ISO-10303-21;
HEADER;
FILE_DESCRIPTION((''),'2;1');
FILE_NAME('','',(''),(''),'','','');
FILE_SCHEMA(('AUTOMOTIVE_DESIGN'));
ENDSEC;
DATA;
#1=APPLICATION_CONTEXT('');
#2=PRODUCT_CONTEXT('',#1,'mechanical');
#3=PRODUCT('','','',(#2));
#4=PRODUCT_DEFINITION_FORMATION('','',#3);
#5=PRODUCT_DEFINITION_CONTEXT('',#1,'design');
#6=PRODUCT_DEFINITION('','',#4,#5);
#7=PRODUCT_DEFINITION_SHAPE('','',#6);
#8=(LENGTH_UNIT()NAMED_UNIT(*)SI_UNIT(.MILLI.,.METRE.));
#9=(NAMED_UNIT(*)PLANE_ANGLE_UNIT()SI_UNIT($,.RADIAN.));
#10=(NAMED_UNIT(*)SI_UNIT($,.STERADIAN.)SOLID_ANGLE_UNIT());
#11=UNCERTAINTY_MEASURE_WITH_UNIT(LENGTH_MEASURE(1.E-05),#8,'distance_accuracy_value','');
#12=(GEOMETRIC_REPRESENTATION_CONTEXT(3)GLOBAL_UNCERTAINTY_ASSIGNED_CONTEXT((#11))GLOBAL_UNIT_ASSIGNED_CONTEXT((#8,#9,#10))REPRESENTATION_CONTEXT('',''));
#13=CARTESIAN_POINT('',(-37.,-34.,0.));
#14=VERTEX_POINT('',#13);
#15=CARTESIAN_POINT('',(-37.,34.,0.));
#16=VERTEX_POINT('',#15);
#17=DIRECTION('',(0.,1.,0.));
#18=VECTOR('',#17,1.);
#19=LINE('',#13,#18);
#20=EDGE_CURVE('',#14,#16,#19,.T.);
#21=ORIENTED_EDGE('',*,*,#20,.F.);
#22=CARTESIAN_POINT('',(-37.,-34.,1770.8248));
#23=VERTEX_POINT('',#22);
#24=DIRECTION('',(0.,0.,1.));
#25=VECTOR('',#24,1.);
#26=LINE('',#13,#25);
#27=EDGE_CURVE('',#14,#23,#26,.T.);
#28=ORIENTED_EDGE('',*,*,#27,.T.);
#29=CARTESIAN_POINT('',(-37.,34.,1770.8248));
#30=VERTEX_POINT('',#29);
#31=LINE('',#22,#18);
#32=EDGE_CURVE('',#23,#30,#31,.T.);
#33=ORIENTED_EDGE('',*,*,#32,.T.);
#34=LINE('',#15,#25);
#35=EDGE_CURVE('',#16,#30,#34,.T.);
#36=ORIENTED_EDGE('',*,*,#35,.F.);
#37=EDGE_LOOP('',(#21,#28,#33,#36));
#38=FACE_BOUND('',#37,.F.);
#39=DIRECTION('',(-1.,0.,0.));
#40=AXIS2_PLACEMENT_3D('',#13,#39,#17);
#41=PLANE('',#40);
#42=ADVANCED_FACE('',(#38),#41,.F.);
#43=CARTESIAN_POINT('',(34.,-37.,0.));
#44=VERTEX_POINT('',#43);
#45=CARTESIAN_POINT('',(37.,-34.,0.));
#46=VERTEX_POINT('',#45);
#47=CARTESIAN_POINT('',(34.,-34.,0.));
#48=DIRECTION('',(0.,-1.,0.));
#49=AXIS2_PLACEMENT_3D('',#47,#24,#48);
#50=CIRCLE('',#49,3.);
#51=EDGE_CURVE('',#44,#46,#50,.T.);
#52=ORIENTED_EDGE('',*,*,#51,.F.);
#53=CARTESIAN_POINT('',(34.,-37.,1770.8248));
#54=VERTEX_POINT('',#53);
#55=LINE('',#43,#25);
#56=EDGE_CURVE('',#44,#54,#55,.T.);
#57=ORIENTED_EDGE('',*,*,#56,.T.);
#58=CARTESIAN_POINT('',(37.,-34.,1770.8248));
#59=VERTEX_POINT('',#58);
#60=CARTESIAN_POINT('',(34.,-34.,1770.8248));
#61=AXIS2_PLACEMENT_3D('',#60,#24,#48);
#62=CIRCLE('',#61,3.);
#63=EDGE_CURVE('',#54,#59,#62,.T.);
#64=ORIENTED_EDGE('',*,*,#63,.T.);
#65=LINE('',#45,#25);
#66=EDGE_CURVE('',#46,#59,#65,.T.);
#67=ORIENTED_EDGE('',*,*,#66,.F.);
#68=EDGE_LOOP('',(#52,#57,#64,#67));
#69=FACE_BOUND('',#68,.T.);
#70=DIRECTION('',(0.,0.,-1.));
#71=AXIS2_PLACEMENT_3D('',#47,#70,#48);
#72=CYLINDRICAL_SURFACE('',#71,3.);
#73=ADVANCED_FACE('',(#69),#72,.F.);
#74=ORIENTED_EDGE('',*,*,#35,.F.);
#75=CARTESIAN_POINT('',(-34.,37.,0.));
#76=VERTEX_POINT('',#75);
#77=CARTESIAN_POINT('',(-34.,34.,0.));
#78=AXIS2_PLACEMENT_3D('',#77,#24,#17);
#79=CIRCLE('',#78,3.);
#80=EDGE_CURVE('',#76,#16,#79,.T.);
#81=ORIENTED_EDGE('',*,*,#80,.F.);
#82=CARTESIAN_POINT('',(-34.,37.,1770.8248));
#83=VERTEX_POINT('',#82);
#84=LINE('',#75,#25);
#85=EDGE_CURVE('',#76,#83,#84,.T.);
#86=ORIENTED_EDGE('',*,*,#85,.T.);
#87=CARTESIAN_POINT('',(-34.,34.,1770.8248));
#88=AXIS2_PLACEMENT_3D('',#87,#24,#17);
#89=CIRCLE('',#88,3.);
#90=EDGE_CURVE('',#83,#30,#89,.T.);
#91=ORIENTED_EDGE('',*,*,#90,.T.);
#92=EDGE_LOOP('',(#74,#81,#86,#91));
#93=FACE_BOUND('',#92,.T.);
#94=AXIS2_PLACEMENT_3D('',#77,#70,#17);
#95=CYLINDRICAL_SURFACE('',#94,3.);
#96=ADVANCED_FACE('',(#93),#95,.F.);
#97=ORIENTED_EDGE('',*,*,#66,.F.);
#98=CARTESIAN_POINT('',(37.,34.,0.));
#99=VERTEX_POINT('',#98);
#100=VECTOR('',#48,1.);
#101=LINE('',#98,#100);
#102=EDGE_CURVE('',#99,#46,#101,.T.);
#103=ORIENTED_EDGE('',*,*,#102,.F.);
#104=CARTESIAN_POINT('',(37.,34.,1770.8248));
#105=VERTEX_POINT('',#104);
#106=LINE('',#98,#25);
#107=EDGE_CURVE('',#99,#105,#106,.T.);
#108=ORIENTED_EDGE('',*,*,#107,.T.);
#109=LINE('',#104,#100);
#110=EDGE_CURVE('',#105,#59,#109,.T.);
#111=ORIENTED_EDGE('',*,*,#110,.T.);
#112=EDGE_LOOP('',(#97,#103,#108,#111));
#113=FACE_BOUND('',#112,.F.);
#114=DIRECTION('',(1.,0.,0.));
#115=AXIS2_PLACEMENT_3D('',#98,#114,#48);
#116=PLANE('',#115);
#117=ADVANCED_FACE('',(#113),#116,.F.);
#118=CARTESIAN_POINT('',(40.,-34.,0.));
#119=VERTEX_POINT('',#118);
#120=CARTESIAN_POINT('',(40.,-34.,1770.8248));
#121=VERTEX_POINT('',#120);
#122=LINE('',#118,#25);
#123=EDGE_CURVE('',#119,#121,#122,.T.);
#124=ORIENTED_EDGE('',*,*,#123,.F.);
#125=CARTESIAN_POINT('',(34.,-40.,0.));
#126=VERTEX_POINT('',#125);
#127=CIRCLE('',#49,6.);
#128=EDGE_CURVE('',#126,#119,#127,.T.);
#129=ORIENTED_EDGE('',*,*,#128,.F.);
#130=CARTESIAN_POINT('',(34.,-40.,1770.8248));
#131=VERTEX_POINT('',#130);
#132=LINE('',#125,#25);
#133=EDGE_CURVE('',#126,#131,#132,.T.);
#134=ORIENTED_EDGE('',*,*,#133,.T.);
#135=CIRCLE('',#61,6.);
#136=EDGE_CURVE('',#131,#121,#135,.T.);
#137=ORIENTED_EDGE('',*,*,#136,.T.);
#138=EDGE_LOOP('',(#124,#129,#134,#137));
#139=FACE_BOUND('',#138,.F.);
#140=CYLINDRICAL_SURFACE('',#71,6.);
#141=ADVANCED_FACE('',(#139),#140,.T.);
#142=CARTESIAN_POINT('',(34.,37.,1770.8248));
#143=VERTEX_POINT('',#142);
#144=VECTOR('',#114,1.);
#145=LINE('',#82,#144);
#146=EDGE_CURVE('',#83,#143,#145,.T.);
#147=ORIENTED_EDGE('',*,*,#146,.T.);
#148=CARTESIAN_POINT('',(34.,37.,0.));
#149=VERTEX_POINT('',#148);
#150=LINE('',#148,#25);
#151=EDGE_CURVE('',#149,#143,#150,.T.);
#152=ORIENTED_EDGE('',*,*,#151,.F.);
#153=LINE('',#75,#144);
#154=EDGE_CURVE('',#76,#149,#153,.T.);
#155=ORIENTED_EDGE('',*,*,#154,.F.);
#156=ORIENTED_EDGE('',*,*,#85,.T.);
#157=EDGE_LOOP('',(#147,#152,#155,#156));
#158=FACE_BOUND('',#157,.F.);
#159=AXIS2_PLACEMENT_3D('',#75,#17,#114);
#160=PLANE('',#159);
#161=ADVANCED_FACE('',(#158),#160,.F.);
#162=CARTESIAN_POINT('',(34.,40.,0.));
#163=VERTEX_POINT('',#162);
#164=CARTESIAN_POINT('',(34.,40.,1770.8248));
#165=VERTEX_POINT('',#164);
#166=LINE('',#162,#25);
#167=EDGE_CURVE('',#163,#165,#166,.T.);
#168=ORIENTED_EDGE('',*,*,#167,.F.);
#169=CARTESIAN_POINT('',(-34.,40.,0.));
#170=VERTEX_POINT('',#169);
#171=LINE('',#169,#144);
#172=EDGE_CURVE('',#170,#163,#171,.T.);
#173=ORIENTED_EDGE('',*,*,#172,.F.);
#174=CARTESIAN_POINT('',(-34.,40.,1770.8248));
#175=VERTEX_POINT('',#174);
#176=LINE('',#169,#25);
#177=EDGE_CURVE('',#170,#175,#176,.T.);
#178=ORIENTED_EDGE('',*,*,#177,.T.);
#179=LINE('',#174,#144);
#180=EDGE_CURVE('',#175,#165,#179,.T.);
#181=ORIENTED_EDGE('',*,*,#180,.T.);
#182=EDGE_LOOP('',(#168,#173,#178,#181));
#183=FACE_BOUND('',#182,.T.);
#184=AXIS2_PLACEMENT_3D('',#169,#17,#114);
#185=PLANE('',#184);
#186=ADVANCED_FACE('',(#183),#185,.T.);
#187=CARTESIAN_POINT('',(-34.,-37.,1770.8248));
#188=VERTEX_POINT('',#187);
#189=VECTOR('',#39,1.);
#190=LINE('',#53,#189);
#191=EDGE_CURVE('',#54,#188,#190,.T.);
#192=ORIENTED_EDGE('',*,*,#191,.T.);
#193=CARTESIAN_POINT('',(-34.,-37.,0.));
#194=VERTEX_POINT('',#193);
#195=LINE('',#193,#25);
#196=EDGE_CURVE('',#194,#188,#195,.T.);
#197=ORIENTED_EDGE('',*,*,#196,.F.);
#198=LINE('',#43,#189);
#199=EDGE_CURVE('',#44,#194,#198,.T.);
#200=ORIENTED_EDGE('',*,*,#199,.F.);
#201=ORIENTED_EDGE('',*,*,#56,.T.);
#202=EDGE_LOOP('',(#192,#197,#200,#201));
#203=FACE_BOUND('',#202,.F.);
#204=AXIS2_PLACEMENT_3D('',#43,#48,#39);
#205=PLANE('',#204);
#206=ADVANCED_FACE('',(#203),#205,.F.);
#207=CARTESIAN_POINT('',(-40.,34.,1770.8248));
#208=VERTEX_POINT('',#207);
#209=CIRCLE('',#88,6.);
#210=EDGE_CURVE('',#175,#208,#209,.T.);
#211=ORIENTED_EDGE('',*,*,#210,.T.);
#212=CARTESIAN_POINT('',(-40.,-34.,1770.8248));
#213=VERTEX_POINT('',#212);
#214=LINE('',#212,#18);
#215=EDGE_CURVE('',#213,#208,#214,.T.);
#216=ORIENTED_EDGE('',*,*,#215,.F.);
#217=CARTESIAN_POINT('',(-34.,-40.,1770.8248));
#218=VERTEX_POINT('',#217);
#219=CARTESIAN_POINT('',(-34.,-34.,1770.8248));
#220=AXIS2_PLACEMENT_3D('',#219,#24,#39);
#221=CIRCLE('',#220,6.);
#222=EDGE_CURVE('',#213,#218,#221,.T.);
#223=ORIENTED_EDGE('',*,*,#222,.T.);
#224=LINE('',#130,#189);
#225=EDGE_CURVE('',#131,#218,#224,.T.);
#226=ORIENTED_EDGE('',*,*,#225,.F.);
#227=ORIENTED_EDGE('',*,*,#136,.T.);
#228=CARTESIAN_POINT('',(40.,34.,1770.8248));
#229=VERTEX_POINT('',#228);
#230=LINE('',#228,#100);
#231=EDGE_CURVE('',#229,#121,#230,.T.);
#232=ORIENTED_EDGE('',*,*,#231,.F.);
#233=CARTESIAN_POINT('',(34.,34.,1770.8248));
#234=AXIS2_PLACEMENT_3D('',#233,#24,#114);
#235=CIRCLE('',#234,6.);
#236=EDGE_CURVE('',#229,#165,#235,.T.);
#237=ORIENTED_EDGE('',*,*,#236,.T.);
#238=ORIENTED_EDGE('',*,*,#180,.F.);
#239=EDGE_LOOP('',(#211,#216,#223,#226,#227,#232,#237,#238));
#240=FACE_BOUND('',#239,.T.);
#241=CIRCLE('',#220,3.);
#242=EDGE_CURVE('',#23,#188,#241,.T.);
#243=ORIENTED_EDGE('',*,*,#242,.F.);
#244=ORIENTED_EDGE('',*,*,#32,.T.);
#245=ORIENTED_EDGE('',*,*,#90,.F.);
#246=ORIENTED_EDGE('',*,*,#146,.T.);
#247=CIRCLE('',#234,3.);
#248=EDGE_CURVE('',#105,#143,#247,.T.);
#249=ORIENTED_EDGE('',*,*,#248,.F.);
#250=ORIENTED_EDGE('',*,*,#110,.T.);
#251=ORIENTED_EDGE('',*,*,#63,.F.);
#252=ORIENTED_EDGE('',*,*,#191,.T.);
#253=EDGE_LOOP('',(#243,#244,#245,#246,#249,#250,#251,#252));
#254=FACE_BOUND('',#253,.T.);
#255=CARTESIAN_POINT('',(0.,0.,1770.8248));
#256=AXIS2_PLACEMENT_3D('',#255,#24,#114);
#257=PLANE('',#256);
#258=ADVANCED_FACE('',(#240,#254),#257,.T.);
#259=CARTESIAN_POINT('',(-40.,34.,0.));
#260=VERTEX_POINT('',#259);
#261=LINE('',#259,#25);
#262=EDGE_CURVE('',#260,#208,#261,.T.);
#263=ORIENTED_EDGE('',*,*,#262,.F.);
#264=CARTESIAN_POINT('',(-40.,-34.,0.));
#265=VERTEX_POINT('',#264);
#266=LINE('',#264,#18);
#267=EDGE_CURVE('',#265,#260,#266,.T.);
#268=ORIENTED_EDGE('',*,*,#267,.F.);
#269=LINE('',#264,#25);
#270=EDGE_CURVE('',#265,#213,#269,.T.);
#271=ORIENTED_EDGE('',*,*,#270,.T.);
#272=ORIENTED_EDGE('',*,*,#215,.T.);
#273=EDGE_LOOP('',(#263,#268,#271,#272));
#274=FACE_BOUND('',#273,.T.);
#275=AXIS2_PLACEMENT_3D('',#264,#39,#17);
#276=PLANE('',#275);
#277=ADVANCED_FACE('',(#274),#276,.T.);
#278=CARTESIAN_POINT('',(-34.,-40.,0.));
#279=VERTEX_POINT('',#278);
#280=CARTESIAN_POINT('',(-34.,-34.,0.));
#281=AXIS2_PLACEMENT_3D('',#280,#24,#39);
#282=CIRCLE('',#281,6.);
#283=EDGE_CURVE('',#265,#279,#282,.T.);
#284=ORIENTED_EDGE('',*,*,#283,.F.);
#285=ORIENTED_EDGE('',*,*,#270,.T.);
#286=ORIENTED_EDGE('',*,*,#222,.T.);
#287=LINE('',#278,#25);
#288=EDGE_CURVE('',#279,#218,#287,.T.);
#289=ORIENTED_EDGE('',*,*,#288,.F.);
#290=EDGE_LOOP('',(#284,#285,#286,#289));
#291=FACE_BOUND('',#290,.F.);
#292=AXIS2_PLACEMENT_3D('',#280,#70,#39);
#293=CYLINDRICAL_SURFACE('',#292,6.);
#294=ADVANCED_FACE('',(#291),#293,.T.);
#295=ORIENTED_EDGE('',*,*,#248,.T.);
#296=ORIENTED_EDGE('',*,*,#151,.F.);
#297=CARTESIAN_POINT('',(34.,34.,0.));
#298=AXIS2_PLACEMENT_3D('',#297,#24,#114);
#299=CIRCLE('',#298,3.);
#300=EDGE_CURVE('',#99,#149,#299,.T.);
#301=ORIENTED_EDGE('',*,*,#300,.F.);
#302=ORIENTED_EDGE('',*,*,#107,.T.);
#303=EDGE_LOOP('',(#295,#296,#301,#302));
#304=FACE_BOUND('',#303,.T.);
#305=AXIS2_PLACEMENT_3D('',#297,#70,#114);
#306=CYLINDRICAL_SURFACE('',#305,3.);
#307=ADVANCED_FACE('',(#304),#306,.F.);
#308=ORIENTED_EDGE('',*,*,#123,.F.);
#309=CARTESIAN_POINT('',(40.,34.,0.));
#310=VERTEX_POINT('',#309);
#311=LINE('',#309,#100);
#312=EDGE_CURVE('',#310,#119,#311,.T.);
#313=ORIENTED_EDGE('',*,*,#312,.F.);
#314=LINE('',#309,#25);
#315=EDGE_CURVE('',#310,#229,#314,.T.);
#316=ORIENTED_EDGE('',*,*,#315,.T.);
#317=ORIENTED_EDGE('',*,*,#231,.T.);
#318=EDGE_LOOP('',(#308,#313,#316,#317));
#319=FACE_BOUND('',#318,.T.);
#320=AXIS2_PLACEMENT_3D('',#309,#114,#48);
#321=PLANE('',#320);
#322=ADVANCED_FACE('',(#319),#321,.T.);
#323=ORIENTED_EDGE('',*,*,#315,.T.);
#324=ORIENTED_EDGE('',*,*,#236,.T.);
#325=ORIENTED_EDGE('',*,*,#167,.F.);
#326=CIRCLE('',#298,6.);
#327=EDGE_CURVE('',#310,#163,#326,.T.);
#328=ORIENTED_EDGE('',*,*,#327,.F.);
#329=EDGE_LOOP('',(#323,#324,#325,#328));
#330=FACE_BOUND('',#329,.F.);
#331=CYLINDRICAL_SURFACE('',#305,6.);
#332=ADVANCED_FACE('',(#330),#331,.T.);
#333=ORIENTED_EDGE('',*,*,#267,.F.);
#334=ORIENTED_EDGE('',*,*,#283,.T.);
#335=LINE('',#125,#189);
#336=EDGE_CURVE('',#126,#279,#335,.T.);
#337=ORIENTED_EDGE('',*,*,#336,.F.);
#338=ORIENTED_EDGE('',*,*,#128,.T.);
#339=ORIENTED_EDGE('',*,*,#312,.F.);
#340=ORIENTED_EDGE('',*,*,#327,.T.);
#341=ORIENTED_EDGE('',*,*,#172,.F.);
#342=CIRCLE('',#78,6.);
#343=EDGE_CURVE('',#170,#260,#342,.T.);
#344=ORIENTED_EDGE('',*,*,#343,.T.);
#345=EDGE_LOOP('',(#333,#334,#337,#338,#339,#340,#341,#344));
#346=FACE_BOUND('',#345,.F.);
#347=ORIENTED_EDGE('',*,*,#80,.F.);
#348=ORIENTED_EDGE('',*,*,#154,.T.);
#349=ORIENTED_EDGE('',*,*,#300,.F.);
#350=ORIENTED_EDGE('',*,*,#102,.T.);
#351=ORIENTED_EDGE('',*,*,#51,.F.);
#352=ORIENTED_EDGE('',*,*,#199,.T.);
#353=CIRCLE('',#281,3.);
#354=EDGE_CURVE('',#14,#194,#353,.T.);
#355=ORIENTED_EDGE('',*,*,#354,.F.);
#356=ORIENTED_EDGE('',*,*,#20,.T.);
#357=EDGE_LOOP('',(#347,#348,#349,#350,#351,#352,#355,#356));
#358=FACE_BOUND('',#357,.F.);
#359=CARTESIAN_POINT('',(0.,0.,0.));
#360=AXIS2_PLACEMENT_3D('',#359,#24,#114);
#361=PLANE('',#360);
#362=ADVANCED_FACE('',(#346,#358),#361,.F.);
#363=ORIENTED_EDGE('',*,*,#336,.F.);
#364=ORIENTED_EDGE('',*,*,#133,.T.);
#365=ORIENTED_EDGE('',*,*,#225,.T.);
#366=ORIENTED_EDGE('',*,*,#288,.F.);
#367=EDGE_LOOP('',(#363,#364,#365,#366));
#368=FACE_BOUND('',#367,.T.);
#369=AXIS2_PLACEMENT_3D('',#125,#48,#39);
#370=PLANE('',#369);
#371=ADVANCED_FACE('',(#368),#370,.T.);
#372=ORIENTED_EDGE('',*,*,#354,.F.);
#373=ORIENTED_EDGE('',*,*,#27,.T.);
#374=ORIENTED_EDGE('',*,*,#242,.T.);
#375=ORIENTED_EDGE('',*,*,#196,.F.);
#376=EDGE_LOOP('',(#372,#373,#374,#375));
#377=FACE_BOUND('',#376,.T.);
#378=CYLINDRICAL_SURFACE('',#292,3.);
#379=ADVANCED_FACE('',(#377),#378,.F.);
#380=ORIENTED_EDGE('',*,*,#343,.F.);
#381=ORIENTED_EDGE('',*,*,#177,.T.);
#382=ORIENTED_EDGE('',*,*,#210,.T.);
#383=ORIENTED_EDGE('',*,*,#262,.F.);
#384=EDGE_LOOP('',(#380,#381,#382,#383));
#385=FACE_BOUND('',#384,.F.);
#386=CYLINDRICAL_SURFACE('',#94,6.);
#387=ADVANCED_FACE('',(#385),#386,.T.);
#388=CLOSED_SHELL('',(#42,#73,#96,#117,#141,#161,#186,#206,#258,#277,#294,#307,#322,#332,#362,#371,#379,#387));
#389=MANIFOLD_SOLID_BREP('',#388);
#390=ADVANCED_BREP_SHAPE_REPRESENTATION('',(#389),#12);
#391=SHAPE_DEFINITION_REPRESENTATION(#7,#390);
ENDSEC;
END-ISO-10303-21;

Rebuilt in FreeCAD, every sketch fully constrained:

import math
import FreeCAD as App
import Part
import Sketcher

V = App.Vector
Q = App.Units.Quantity

doc = App.newDocument("Part")
body = doc.addObject("PartDesign::Body", "Body")

sketch1 = body.newObject("Sketcher::SketchObject", "Sketch")
sketch1.AttachmentSupport = (doc.getObject("XY_Plane"), [""])
sketch1.MapMode = "FlatFace"
sketch1.addGeometry([
    Part.LineSegment(V(-40, 34, 0), V(-40, -34, 0)),
    Part.ArcOfCircle(Part.Circle(V(-34, -34, 0), V(0, 0, 1), 6), math.radians(180), math.radians(270)),
    Part.LineSegment(V(-34, -40, 0), V(34, -40, 0)),
    Part.ArcOfCircle(Part.Circle(V(34, -34, 0), V(0, 0, 1), 6), math.radians(-90), math.radians(0)),
    Part.LineSegment(V(40, -34, 0), V(40, 34, 0)),
    Part.ArcOfCircle(Part.Circle(V(34, 34, 0), V(0, 0, 1), 6), math.radians(0), math.radians(90)),
    Part.LineSegment(V(34, 40, 0), V(-34, 40, 0)),
    Part.ArcOfCircle(Part.Circle(V(-34, 34, 0), V(0, 0, 1), 6), math.radians(90), math.radians(180)),
    Part.ArcOfCircle(Part.Circle(V(-34, 34, 0), V(0, 0, 1), 3), math.radians(90), math.radians(180)),
    Part.LineSegment(V(-34, 37, 0), V(34, 37, 0)),
    Part.ArcOfCircle(Part.Circle(V(34, 34, 0), V(0, 0, 1), 3), math.radians(0), math.radians(90)),
    Part.LineSegment(V(37, 34, 0), V(37, -34, 0)),
    Part.ArcOfCircle(Part.Circle(V(34, -34, 0), V(0, 0, 1), 3), math.radians(-90), math.radians(0)),
    Part.LineSegment(V(34, -37, 0), V(-34, -37, 0)),
    Part.ArcOfCircle(Part.Circle(V(-34, -34, 0), V(0, 0, 1), 3), math.radians(180), math.radians(270)),
    Part.LineSegment(V(-37, -34, 0), V(-37, 34, 0)),
], False)
sketch1.addConstraint([
    Sketcher.Constraint("Tangent", 0, 2, 1, 1),
    Sketcher.Constraint("Tangent", 1, 2, 2, 1),
    Sketcher.Constraint("Tangent", 2, 2, 3, 1),
    Sketcher.Constraint("Tangent", 3, 2, 4, 1),
    Sketcher.Constraint("Tangent", 4, 2, 5, 1),
    Sketcher.Constraint("Tangent", 5, 2, 6, 1),
    Sketcher.Constraint("Tangent", 6, 2, 7, 1),
    Sketcher.Constraint("Tangent", 7, 2, 0, 1),
    Sketcher.Constraint("Tangent", 8, 1, 9, 1),
    Sketcher.Constraint("Tangent", 9, 2, 10, 2),
    Sketcher.Constraint("Tangent", 10, 1, 11, 1),
    Sketcher.Constraint("Tangent", 11, 2, 12, 2),
    Sketcher.Constraint("Tangent", 12, 1, 13, 1),
    Sketcher.Constraint("Tangent", 13, 2, 14, 2),
    Sketcher.Constraint("Tangent", 14, 1, 15, 1),
    Sketcher.Constraint("Tangent", 15, 2, 8, 2),
    Sketcher.Constraint("Vertical", 0),
    Sketcher.Constraint("Horizontal", 2),
    Sketcher.Constraint("Vertical", 4),
    Sketcher.Constraint("Horizontal", 6),
    Sketcher.Constraint("Horizontal", 9),
    Sketcher.Constraint("Vertical", 11),
    Sketcher.Constraint("Horizontal", 13),
    Sketcher.Constraint("Vertical", 15),
    Sketcher.Constraint("Coincident", 8, 3, 7, 3),
    Sketcher.Constraint("Coincident", 10, 3, 5, 3),
    Sketcher.Constraint("Coincident", 12, 3, 3, 3),
    Sketcher.Constraint("Equal", 1, 3),
    Sketcher.Constraint("Equal", 3, 5),
    Sketcher.Constraint("Equal", 5, 7),
    Sketcher.Constraint("Equal", 12, 14),
    Sketcher.Constraint("Symmetric", 1, 3, 5, 3, -1, 1),
    Sketcher.Constraint("Equal", 13, 0),
    Sketcher.Constraint("Radius", 1, Q("6 mm")),
    Sketcher.Constraint("Radius", 8, Q("3 mm")),
    Sketcher.Constraint("DistanceX", 0, 2, -1, 1, Q("40 mm")),
])
pad1 = body.newObject("PartDesign::Pad", "Pad")
pad1.Profile = sketch1
pad1.Length = 1770.8248

doc.recompute()
